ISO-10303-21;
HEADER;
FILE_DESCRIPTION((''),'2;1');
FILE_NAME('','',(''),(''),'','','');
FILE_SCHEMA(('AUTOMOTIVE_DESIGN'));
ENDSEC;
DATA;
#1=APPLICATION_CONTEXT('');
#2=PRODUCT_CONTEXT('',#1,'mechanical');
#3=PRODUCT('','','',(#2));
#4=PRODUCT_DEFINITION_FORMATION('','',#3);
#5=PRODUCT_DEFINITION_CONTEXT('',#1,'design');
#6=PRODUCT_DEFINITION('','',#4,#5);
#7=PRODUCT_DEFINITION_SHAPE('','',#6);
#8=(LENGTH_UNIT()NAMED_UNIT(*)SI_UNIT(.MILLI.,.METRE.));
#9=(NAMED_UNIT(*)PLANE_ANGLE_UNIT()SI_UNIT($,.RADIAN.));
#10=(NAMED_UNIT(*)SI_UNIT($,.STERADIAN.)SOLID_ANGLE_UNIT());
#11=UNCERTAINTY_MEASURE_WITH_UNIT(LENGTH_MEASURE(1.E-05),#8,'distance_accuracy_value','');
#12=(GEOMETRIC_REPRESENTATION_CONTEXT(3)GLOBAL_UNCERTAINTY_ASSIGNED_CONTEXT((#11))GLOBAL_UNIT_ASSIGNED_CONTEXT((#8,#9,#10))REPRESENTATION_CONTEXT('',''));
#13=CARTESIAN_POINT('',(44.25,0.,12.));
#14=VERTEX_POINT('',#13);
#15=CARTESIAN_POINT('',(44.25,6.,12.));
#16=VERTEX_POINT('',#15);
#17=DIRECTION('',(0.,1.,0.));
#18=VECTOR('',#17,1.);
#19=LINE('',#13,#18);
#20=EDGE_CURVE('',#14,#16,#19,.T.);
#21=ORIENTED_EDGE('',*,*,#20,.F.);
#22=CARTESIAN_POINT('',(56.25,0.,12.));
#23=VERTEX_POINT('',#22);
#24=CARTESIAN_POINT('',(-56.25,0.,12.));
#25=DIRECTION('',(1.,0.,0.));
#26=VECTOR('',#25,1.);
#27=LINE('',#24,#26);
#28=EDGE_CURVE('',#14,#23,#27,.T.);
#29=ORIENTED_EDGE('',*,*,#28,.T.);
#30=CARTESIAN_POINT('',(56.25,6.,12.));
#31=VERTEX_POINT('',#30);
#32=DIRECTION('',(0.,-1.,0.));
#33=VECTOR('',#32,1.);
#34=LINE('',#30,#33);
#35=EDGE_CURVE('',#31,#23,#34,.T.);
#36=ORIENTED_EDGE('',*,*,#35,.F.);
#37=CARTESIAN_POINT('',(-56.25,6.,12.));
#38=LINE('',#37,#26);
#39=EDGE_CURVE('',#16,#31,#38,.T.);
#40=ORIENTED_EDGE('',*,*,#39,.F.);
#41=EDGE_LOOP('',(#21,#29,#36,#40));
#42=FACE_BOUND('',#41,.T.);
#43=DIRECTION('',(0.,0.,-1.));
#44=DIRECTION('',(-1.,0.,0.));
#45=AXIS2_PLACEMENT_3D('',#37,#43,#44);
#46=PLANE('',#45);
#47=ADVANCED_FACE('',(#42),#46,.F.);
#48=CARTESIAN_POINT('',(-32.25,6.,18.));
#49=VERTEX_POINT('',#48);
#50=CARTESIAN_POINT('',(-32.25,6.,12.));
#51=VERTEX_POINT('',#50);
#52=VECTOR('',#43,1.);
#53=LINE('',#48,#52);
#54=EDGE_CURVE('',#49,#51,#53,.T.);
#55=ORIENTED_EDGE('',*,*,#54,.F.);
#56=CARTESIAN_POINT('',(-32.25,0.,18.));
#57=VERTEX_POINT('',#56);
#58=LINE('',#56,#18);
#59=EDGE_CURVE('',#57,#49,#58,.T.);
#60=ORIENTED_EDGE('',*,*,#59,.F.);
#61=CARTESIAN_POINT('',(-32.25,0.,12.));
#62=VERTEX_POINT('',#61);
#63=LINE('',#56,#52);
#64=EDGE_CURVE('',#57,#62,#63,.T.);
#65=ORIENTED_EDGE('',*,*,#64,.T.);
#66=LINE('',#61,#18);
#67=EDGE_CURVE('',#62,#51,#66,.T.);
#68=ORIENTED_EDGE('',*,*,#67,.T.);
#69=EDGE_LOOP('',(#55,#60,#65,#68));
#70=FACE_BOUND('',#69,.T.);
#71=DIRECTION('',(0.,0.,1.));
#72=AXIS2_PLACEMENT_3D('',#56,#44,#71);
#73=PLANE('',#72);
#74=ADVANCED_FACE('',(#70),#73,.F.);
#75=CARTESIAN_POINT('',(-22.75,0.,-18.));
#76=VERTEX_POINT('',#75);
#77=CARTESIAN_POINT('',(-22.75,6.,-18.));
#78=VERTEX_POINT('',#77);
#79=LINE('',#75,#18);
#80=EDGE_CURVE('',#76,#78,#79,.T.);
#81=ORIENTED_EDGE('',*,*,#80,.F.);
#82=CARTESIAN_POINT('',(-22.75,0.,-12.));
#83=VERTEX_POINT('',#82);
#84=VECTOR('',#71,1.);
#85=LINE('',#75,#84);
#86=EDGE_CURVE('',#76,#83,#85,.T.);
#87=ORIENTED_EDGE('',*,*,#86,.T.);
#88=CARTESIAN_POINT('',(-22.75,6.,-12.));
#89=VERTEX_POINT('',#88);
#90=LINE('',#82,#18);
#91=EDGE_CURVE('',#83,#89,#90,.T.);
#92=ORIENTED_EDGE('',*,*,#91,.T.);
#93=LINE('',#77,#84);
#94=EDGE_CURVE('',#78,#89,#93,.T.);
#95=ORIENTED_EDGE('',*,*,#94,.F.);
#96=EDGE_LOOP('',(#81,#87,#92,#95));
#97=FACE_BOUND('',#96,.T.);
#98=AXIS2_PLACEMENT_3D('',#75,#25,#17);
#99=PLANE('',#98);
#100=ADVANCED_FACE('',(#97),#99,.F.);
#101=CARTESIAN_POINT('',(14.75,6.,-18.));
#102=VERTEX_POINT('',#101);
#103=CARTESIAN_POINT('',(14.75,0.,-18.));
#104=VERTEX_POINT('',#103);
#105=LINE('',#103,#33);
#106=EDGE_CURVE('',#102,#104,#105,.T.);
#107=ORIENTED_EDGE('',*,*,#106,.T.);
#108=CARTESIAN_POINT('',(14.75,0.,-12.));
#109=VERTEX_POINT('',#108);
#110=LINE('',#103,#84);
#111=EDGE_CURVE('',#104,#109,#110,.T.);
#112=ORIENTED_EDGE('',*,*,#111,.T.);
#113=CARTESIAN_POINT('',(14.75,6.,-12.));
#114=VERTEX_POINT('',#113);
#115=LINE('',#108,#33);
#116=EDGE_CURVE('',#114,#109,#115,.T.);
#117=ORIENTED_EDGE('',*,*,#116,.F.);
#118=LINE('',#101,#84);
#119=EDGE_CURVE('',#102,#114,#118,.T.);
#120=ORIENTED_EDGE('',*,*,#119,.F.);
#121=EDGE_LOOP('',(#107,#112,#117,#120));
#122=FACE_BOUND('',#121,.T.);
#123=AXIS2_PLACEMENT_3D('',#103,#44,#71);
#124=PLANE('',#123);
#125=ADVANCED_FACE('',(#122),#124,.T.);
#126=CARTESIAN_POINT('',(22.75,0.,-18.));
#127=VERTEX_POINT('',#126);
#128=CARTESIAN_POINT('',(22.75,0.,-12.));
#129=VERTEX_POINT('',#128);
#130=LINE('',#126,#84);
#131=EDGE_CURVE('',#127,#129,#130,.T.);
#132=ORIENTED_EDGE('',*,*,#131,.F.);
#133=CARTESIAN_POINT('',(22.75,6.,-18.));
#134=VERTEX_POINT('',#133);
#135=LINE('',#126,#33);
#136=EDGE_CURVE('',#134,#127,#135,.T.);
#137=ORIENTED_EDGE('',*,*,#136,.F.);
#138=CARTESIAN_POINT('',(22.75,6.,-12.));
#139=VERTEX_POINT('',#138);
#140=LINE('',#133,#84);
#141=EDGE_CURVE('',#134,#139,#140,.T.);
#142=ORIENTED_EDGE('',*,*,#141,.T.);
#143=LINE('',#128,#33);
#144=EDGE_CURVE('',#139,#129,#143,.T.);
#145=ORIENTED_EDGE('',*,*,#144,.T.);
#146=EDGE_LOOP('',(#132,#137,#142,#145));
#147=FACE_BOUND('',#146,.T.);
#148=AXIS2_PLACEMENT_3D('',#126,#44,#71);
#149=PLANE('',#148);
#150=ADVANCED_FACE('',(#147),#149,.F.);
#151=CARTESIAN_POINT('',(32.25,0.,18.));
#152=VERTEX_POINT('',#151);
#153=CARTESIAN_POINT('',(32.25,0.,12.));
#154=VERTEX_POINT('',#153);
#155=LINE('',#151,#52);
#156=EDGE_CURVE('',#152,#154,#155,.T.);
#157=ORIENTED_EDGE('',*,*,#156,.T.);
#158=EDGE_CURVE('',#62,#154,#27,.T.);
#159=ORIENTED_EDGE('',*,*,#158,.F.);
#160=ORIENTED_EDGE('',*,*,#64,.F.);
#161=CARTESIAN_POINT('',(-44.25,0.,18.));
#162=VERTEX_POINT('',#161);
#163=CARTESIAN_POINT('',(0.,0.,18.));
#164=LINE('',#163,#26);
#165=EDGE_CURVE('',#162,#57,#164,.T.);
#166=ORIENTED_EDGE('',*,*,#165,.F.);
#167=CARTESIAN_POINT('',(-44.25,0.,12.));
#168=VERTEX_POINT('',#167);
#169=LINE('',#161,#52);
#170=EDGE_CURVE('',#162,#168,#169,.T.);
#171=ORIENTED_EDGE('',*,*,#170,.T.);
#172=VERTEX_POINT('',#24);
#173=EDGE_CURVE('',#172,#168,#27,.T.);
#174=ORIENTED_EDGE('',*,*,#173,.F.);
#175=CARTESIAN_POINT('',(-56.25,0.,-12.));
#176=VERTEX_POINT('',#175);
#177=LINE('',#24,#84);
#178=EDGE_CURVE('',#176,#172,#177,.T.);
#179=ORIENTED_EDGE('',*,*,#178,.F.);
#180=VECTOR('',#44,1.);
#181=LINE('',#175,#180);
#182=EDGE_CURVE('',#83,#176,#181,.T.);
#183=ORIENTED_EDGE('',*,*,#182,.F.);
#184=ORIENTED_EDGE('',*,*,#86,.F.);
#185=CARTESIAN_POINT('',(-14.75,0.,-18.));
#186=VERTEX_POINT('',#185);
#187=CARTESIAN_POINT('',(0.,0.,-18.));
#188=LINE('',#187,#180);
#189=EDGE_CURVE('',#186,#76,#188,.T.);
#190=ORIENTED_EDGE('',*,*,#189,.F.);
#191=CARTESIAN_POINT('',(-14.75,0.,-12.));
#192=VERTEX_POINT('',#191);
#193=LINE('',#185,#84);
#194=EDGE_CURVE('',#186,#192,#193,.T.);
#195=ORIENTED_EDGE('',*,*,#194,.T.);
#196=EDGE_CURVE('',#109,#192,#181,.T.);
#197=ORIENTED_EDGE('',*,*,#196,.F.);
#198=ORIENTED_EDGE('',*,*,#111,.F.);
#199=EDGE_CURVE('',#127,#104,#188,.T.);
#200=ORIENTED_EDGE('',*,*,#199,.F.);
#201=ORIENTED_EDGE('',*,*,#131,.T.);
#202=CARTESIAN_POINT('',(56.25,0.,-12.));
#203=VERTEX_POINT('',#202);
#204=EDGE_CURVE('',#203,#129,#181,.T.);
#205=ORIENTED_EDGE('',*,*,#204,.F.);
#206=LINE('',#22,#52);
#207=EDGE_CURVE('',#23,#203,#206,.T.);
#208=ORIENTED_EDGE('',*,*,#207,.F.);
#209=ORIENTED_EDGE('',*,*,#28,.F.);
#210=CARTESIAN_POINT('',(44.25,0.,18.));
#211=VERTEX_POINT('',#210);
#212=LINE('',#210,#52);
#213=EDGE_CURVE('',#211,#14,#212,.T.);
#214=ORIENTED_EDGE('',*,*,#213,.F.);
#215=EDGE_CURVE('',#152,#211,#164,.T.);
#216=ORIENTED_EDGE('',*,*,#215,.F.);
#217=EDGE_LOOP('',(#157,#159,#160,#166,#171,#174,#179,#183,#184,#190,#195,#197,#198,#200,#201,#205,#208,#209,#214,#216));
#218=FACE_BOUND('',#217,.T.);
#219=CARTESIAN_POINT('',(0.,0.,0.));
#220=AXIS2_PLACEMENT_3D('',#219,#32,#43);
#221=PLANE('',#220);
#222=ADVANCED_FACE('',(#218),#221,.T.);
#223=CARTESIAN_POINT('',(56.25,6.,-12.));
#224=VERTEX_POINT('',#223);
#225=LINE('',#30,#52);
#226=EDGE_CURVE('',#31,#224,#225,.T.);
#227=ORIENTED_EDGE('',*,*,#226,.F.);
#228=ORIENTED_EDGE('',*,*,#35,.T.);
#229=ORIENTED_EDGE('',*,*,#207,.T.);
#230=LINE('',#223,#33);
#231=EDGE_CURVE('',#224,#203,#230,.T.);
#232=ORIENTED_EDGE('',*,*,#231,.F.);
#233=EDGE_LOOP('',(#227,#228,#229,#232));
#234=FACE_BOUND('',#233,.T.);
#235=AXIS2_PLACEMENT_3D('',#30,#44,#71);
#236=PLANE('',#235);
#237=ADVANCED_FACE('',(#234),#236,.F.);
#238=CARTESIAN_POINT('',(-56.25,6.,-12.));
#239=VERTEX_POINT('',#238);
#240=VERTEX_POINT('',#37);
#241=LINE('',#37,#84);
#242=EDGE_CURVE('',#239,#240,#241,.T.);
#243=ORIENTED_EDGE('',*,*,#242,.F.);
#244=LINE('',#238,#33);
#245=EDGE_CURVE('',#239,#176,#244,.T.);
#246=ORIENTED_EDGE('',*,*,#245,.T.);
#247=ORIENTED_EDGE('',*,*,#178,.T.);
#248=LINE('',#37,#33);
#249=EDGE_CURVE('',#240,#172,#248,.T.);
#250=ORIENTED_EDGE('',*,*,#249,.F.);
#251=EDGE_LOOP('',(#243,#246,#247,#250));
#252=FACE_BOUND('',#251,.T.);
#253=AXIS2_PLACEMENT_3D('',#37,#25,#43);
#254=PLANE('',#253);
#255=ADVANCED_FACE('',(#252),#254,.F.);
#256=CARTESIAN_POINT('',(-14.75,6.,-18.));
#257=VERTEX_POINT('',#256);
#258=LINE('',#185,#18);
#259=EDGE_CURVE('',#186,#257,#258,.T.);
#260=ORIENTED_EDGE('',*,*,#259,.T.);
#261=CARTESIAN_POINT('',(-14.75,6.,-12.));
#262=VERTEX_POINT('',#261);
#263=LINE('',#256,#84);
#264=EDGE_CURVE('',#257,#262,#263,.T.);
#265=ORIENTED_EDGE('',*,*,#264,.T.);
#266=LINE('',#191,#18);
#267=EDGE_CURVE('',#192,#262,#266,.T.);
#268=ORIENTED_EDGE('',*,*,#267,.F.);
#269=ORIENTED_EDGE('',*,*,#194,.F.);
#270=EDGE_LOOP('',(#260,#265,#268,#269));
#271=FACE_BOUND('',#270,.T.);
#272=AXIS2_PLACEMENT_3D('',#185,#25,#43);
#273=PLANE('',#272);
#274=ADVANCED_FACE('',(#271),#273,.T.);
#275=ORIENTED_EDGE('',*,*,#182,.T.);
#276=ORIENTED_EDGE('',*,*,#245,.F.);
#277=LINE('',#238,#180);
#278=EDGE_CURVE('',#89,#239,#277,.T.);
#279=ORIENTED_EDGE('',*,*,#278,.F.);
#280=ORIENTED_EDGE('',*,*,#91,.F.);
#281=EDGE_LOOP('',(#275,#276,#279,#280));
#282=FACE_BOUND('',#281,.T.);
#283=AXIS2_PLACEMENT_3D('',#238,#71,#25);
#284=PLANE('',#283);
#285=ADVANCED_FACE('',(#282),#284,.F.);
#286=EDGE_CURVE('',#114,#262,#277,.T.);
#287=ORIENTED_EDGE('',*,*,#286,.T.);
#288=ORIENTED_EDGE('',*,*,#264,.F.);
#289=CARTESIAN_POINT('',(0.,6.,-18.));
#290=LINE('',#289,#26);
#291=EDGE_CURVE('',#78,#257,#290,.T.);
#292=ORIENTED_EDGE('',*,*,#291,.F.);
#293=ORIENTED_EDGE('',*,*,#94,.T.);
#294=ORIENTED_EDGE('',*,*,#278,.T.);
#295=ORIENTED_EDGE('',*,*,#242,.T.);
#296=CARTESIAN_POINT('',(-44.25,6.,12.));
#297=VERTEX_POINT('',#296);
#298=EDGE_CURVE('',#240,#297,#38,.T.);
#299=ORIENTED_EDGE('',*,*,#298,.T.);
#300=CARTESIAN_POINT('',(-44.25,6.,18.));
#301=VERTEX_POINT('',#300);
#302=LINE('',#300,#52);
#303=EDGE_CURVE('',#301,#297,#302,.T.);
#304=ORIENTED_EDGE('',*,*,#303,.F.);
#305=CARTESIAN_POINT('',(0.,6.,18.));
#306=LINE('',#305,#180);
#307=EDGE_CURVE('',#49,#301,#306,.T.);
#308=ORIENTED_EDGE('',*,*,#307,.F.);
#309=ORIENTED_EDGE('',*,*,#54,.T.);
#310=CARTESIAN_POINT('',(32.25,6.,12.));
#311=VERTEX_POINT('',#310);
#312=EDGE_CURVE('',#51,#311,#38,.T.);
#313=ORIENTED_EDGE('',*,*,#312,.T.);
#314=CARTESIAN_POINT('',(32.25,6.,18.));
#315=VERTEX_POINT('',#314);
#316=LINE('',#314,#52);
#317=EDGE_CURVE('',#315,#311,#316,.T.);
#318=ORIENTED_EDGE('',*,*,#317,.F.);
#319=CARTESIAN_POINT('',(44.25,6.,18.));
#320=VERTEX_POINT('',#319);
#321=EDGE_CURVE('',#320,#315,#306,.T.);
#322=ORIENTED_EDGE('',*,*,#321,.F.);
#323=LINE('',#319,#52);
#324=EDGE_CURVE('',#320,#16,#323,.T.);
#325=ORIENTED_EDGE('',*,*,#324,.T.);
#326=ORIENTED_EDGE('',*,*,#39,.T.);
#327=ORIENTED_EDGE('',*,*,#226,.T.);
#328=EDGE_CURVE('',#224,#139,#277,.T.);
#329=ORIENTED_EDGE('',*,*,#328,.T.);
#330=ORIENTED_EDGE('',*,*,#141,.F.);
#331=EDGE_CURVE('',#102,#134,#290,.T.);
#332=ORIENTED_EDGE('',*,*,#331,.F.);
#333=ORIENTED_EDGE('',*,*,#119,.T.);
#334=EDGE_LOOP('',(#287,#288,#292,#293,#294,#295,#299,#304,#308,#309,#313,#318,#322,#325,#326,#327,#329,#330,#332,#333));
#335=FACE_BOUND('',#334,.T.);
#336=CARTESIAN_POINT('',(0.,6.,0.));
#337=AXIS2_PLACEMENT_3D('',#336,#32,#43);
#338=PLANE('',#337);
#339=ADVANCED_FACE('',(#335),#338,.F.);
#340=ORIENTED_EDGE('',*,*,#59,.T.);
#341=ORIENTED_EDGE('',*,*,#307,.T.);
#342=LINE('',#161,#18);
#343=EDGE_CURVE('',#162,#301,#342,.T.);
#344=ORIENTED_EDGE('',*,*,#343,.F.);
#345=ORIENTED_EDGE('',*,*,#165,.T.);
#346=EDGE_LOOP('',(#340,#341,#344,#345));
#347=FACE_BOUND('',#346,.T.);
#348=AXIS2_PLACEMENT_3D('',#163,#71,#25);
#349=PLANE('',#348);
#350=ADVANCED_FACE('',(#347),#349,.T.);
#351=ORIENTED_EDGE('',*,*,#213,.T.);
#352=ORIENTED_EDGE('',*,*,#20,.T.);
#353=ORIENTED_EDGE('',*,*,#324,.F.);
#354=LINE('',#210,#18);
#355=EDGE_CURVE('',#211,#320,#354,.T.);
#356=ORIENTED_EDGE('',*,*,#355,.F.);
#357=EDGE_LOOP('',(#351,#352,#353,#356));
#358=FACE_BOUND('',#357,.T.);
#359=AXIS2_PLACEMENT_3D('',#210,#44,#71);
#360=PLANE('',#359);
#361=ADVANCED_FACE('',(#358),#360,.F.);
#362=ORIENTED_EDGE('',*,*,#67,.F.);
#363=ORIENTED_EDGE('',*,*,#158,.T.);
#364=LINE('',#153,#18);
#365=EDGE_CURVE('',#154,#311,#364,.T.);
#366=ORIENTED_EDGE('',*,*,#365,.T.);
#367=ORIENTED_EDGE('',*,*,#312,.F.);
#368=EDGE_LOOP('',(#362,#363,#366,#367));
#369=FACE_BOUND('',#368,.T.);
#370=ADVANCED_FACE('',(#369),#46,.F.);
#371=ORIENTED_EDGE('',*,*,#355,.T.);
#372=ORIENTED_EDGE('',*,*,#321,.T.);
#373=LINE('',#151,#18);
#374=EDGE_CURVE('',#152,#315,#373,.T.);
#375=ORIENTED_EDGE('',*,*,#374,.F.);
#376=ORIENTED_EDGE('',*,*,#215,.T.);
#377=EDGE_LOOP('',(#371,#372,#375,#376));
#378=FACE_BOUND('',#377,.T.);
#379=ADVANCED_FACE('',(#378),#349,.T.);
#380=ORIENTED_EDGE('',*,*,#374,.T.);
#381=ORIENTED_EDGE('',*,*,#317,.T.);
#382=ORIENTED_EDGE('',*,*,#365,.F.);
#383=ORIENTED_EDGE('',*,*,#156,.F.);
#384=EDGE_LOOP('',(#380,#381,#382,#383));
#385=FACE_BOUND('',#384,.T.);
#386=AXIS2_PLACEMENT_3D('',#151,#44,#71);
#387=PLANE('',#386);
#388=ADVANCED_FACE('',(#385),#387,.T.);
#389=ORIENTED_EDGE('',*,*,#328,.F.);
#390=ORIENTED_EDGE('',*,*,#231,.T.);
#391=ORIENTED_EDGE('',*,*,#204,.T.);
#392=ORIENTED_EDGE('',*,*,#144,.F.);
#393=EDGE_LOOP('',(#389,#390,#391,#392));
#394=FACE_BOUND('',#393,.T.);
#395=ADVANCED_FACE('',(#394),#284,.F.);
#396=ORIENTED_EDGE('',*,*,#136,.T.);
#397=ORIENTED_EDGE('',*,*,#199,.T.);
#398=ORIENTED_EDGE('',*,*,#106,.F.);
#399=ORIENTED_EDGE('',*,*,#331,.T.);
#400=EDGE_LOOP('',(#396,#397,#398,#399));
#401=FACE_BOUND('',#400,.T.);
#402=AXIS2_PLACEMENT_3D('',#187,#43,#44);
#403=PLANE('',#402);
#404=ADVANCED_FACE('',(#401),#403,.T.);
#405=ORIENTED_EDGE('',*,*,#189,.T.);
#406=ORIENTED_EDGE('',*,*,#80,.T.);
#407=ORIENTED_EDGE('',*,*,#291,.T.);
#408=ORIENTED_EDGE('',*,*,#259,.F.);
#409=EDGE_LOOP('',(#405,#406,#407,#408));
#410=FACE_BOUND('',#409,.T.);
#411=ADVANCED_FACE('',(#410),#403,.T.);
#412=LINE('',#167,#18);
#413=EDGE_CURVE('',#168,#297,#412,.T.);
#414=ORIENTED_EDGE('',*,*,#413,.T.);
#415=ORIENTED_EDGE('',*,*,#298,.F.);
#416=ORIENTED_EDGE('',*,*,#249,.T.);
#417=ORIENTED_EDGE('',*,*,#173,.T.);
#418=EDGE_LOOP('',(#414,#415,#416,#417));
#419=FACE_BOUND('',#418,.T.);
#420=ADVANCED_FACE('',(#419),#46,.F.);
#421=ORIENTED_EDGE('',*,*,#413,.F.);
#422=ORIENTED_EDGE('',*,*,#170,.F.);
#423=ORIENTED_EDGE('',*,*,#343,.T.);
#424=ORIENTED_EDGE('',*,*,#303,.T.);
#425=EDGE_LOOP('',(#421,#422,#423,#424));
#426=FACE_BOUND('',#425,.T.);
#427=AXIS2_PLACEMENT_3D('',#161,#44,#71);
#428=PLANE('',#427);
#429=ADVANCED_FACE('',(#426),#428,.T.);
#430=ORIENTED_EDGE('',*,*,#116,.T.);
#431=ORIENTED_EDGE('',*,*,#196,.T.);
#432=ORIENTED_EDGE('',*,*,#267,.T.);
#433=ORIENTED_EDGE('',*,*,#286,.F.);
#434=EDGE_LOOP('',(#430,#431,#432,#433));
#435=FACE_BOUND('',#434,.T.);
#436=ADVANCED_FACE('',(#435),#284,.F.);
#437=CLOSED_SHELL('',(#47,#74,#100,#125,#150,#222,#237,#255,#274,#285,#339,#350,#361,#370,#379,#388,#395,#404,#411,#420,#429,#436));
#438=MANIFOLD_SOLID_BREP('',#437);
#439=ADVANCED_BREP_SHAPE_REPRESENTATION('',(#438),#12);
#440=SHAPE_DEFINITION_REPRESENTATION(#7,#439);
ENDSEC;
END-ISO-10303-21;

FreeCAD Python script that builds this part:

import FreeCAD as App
import Part
import Sketcher
Q = App.Units.Quantity


def add_polygon(sketch, points):
    """Adds a closed chain of lines whose ends are joined by coincident constraints."""
    first, n = sketch.GeometryCount, len(points)
    for a, b in zip(points, points[1:] + points[:1]):
        sketch.addGeometry(Part.LineSegment(App.Vector(*a, 0), App.Vector(*b, 0)), False)
    for i in range(n):
        sketch.addConstraint(Sketcher.Constraint("Coincident", first + i, 2, first + (i + 1) % n, 1))

doc = App.newDocument("Part")
body = doc.addObject("PartDesign::Body", "Body")

# Sketch on XZ plane
sketch1 = body.newObject("Sketcher::SketchObject", "Sketch")
sketch1.AttachmentSupport = (doc.getObject("XZ_Plane"), [""])
sketch1.MapMode = "FlatFace"
add_polygon(sketch1, [(-56, -12), (-56, 12), (56, 12), (56, -12)])  # lines 0-3
sketch1.addConstraint([
    Sketcher.Constraint("Vertical", 0),
    Sketcher.Constraint("Horizontal", 1),
    Sketcher.Constraint("Vertical", 2),
    Sketcher.Constraint("Horizontal", 3),
    Sketcher.Constraint("Symmetric", 0, 2, 2, 2, -1, 1),
    Sketcher.Constraint("DistanceY", 0, 1, 0, 2, Q("24 mm")),
    Sketcher.Constraint("DistanceX", 1, 1, 1, 2, Q("112.5 mm")),
])
pad1 = body.newObject("PartDesign::Pad", "Pad")
pad1.Profile = sketch1
pad1.Length = 6
pad1.Reversed = True

# Sketch on XY plane
sketch2 = body.newObject("Sketcher::SketchObject", "Sketch001")
sketch2.AttachmentSupport = (doc.getObject("XY_Plane"), [""])
sketch2.MapMode = "FlatFace"
sketch2.AttachmentOffset = App.Placement(App.Vector(0, 0, -12), App.Rotation())
add_polygon(sketch2, [(23, 6), (23, 0), (15, 0), (15, 6)])  # lines 0-3
add_polygon(sketch2, [(-15, 6), (-15, 0), (-23, 0), (-23, 6)])  # lines 4-7
sketch2.addConstraint([
    Sketcher.Constraint("Vertical", 0),
    Sketcher.Constraint("Horizontal", 1),
    Sketcher.Constraint("Vertical", 2),
    Sketcher.Constraint("Horizontal", 3),
    Sketcher.Constraint("Vertical", 4),
    Sketcher.Constraint("Horizontal", 5),
    Sketcher.Constraint("Vertical", 6),
    Sketcher.Constraint("Horizontal", 7),
    Sketcher.Constraint("Symmetric", 1, 2, 4, 2, -1, 1),
    Sketcher.Constraint("Symmetric", 0, 2, 5, 2, -2),
    Sketcher.Constraint("Horizontal", 3, 2, 6, 2),
    Sketcher.Constraint("DistanceX", 1, 2, 1, 1, Q("8 mm")),
    Sketcher.Constraint("DistanceY", 0, 2, 0, 1, Q("6 mm")),
    Sketcher.Constraint("DistanceX", 4, 2, 1, 2, Q("29.5 mm")),
])
pad2 = body.newObject("PartDesign::Pad", "Pad001")
pad2.Profile = sketch2
pad2.Length = 6
pad2.Reversed = True

# Sketch on XY plane
sketch3 = body.newObject("Sketcher::SketchObject", "Sketch002")
sketch3.AttachmentSupport = (doc.getObject("XY_Plane"), [""])
sketch3.MapMode = "FlatFace"
sketch3.AttachmentOffset = App.Placement(App.Vector(0, 0, 12), App.Rotation())
add_polygon(sketch3, [(-44, 6), (-44, 0), (-32, 0), (-32, 6)])  # lines 0-3
add_polygon(sketch3, [(32, 6), (32, 0), (44, 0), (44, 6)])  # lines 4-7
sketch3.addConstraint([
    Sketcher.Constraint("Vertical", 0),
    Sketcher.Constraint("Horizontal", 1),
    Sketcher.Constraint("Vertical", 2),
    Sketcher.Constraint("Horizontal", 3),
    Sketcher.Constraint("Vertical", 4),
    Sketcher.Constraint("Horizontal", 5),
    Sketcher.Constraint("Vertical", 6),
    Sketcher.Constraint("Horizontal", 7),
    Sketcher.Constraint("Symmetric", 1, 2, 4, 2, -1, 1),
    Sketcher.Constraint("Symmetric", 0, 2, 5, 2, -2),
    Sketcher.Constraint("Horizontal", 3, 2, 6, 2),
    Sketcher.Constraint("DistanceX", 1, 1, 1, 2, Q("12 mm")),
    Sketcher.Constraint("DistanceY", 0, 2, 0, 1, Q("6 mm")),
    Sketcher.Constraint("DistanceX", 1, 2, 4, 2, Q("64.5 mm")),
])
pad3 = body.newObject("PartDesign::Pad", "Pad002")
pad3.Profile = sketch3
pad3.Length = 6

doc.recompute()
